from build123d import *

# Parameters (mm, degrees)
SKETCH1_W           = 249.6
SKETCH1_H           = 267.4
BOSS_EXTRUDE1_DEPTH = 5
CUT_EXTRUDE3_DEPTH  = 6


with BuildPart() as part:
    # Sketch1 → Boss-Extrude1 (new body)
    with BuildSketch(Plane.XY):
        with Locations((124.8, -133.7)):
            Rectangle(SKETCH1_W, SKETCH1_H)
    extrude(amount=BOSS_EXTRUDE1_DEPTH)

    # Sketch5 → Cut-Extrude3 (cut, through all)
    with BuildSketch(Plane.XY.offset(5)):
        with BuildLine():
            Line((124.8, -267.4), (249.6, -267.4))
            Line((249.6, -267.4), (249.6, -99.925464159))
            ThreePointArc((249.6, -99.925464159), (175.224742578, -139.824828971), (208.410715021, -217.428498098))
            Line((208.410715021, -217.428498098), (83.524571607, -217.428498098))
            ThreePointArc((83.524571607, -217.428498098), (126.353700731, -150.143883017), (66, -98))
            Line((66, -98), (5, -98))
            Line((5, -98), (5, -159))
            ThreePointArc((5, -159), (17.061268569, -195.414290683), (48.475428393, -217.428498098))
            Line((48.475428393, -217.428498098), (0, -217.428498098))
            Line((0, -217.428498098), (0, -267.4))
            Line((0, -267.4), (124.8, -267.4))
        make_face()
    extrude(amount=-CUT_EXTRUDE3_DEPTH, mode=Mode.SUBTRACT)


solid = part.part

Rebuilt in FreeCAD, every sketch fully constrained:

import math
import FreeCAD as App
import Part
import Sketcher
from FreeCAD import Vector
Q = App.Units.Quantity


def add_polygon(sketch, points):
    """Adds a closed chain of lines whose ends are joined by coincident constraints."""
    first, n = sketch.GeometryCount, len(points)
    for a, b in zip(points, points[1:] + points[:1]):
        sketch.addGeometry(Part.LineSegment(App.Vector(*a, 0), App.Vector(*b, 0)), False)
    for i in range(n):
        sketch.addConstraint(Sketcher.Constraint("Coincident", first + i, 2, first + (i + 1) % n, 1))

doc = App.newDocument("Part")
body = doc.addObject("PartDesign::Body", "Body")

sketch1 = doc.addObject("Sketcher::SketchObject", "Sketch")
body.addObject(sketch1)
sketch1.AttachmentSupport = (doc.XY_Plane, [""])
sketch1.MapMode = "FlatFace"
add_polygon(sketch1, [(0, 0), (0, -267), (250, -267), (250, 0)])
sketch1.addConstraint(Sketcher.Constraint("Vertical", 0))
sketch1.addConstraint(Sketcher.Constraint("Horizontal", 1))
sketch1.addConstraint(Sketcher.Constraint("Vertical", 2))
sketch1.addConstraint(Sketcher.Constraint("Horizontal", 3))
sketch1.addConstraint(Sketcher.Constraint("Coincident", 3, 2, -1, 1))
sketch1.addConstraint(Sketcher.Constraint("DistanceX", 1, 1, 1, 2, Q("249.6 mm")))
sketch1.addConstraint(Sketcher.Constraint("DistanceY", 0, 2, 0, 1, Q("267.4 mm")))
pad1 = doc.addObject("PartDesign::Pad", "Pad")
body.addObject(pad1)
pad1.Profile = sketch1
pad1.Length = 5

sketch2 = doc.addObject("Sketcher::SketchObject", "Sketch001")
body.addObject(sketch2)
sketch2.AttachmentSupport = (doc.XY_Plane, [""])
sketch2.MapMode = "FlatFace"
sketch2.AttachmentOffset = App.Placement(Vector(0, 0, 5), App.Rotation())
sketch2.addGeometry(Part.LineSegment(Vector(250, -267, 0), Vector(250, -100, 0)), False)
sketch2.addGeometry(Part.ArcOfCircle(Part.Circle(Vector(234, -160, 0), Vector(0, 0, 1), 62), math.radians(76), math.radians(246)), False)
sketch2.addGeometry(Part.LineSegment(Vector(208, -217, 0), Vector(84, -217, 0)), False)
sketch2.addGeometry(Part.ArcOfCircle(Part.Circle(Vector(66, -159, 0), Vector(0, 0, 1), 61), math.radians(-73), math.radians(90)), False)
sketch2.addGeometry(Part.LineSegment(Vector(66, -98, 0), Vector(5, -98, 0)), False)
sketch2.addGeometry(Part.LineSegment(Vector(5, -98, 0), Vector(5, -159, 0)), False)
sketch2.addGeometry(Part.ArcOfCircle(Part.Circle(Vector(66, -159, 0), Vector(0, 0, 1), 61), math.radians(180), math.radians(253)), False)
sketch2.addGeometry(Part.LineSegment(Vector(48, -217, 0), Vector(0, -217, 0)), False)
sketch2.addGeometry(Part.LineSegment(Vector(0, -217, 0), Vector(0, -267, 0)), False)
sketch2.addGeometry(Part.LineSegment(Vector(0, -267, 0), Vector(250, -267, 0)), False)
sketch2.addConstraint(Sketcher.Constraint("Coincident", 0, 2, 1, 1))
sketch2.addConstraint(Sketcher.Constraint("Coincident", 1, 2, 2, 1))
sketch2.addConstraint(Sketcher.Constraint("Coincident", 2, 2, 3, 1))
sketch2.addConstraint(Sketcher.Constraint("Tangent", 3, 2, 4, 1))
sketch2.addConstraint(Sketcher.Constraint("Coincident", 4, 2, 5, 1))
sketch2.addConstraint(Sketcher.Constraint("Tangent", 5, 2, 6, 1))
sketch2.addConstraint(Sketcher.Constraint("Coincident", 6, 2, 7, 1))
sketch2.addConstraint(Sketcher.Constraint("Coincident", 7, 2, 8, 1))
sketch2.addConstraint(Sketcher.Constraint("Coincident", 8, 2, 9, 1))
sketch2.addConstraint(Sketcher.Constraint("Coincident", 9, 2, 0, 1))
sketch2.addConstraint(Sketcher.Constraint("Vertical", 0))
sketch2.addConstraint(Sketcher.Constraint("Horizontal", 2))
sketch2.addConstraint(Sketcher.Constraint("Horizontal", 4))
sketch2.addConstraint(Sketcher.Constraint("Vertical", 5))
sketch2.addConstraint(Sketcher.Constraint("Horizontal", 7))
sketch2.addConstraint(Sketcher.Constraint("Vertical", 8))
sketch2.addConstraint(Sketcher.Constraint("Horizontal", 9))
sketch2.addConstraint(Sketcher.Constraint("Coincident", 6, 3, 3, 3))
sketch2.addConstraint(Sketcher.Constraint("Equal", 3, 6))
sketch2.addConstraint(Sketcher.Constraint("PointOnObject", 7, 2, -2))
sketch2.addConstraint(Sketcher.Constraint("Horizontal", 2, 2, 6, 2))
sketch2.addConstraint(Sketcher.Constraint("Radius", 3, Q("61 mm")))
sketch2.addConstraint(Sketcher.Constraint("Radius", 1, Q("62.5 mm")))
sketch2.addConstraint(Sketcher.Constraint("DistanceX", 9, 1, 9, 2, Q("249.6 mm")))
sketch2.addConstraint(Sketcher.Constraint("DistanceX", -1, 1, 3, 3, Q("66 mm")))
sketch2.addConstraint(Sketcher.Constraint("DistanceY", 3, 3, -1, 1, Q("159 mm")))
sketch2.addConstraint(Sketcher.Constraint("DistanceY", 1, 3, -1, 1, Q("160.5 mm")))
sketch2.addConstraint(Sketcher.Constraint("DistanceY", 8, 2, -1, 1, Q("267.4 mm")))
sketch2.addConstraint(Sketcher.Constraint("DistanceY", 8, 2, 8, 1, Q("49.971502 mm")))
sketch2.addConstraint(Sketcher.Constraint("DistanceX", 2, 2, 2, 1, Q("124.886143 mm")))
pocket1 = doc.addObject("PartDesign::Pocket", "Pocket")
body.addObject(pocket1)
pocket1.Profile = sketch2
pocket1.Type = "ThroughAll"

doc.recompute()
